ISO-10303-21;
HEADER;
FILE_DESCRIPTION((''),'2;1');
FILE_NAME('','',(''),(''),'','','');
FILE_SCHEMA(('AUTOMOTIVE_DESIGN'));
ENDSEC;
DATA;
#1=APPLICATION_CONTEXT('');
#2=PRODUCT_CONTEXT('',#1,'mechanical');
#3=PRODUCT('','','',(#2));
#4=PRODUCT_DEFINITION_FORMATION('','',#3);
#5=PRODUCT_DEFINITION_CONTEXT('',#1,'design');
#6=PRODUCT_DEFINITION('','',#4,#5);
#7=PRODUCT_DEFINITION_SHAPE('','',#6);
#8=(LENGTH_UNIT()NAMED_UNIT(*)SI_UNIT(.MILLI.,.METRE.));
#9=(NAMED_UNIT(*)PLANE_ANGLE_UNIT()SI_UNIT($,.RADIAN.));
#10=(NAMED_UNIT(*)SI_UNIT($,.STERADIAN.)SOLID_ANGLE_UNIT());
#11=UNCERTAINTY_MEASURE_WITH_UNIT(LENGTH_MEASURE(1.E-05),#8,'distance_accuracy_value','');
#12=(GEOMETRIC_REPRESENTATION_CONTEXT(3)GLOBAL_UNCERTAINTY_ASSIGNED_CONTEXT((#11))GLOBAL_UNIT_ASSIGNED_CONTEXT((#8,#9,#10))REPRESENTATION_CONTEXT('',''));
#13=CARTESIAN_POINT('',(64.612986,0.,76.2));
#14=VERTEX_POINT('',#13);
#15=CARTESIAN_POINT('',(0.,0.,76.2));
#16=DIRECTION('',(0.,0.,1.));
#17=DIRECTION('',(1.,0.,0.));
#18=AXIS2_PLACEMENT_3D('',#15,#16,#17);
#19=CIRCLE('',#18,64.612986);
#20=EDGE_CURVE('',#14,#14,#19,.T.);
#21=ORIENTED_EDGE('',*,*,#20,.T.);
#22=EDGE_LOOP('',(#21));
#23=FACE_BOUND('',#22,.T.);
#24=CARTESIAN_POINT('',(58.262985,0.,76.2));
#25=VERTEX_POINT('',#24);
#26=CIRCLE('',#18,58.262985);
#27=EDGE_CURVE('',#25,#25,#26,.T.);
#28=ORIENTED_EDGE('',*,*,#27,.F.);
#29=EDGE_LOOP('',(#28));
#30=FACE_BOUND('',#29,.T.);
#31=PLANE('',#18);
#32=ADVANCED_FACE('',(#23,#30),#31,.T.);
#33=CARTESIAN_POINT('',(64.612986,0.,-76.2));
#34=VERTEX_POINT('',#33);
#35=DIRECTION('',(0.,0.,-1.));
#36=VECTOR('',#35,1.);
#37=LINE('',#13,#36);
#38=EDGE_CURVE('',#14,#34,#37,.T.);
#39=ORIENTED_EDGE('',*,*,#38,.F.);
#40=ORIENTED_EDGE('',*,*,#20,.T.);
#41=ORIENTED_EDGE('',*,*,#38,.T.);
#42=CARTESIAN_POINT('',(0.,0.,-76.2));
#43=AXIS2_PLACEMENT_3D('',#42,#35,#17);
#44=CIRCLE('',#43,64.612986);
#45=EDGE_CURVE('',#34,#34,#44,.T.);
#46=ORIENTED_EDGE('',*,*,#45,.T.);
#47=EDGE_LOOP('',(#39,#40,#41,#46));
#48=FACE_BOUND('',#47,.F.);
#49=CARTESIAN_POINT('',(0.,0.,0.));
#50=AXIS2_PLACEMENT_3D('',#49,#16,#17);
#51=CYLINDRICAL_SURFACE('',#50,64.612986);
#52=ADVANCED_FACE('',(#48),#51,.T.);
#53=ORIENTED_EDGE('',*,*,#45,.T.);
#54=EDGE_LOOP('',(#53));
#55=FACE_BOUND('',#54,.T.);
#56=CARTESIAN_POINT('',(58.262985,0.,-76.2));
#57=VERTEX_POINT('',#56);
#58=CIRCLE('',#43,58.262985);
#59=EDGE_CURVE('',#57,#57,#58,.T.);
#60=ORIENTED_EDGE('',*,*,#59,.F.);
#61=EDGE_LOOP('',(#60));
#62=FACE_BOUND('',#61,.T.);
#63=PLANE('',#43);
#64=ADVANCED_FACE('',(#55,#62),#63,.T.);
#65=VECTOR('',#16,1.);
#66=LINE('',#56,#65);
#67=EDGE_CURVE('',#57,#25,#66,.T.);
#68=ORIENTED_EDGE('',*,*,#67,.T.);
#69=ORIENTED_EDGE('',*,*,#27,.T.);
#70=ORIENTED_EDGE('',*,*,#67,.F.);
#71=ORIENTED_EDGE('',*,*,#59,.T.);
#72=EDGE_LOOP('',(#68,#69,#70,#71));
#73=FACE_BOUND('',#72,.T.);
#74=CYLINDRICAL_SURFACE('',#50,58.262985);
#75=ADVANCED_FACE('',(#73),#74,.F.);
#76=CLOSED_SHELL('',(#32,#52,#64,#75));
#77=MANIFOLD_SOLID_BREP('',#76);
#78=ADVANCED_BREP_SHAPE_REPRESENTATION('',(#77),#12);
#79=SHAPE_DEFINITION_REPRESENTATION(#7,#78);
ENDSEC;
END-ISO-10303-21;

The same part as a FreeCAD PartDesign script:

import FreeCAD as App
import Part
import Sketcher

V = App.Vector
Q = App.Units.Quantity

doc = App.newDocument("Part")
body = doc.addObject("PartDesign::Body", "Body")

# Sketch on XY plane
sketch1 = body.newObject("Sketcher::SketchObject", "Sketch")
sketch1.AttachmentSupport = (doc.getObject("XY_Plane"), [""])
sketch1.MapMode = "FlatFace"
sketch1.addGeometry([
    Part.Circle(V(0, 0, 0), V(0, 0, 1), 64.612986),
    Part.Circle(V(0, 0, 0), V(0, 0, 1), 58.262985),
], False)
sketch1.addConstraint([
    Sketcher.Constraint("Coincident", 0, 3, -1, 1),
    Sketcher.Constraint("Coincident", 1, 3, -1, 1),
    Sketcher.Constraint("Diameter", 1, 116.52597),
    Sketcher.Constraint("Diameter", 0, 129.225972),
])
pad1 = body.newObject("PartDesign::Pad", "Pad")
pad1.Profile = sketch1
pad1.Length = Q("3 in")

# Sketch on XY plane
sketch2 = body.newObject("Sketcher::SketchObject", "Sketch001")
sketch2.AttachmentSupport = (doc.getObject("XY_Plane"), [""])
sketch2.MapMode = "FlatFace"
sketch2.addGeometry([
    Part.Circle(V(0, 0, 0), V(0, 0, 1), 64.612986),
    Part.Circle(V(0, 0, 0), V(0, 0, 1), 58.262985),
], False)
sketch2.addConstraint([
    Sketcher.Constraint("Coincident", 0, 3, -1, 1),
    Sketcher.Constraint("Coincident", 1, 3, -1, 1),
    Sketcher.Constraint("Diameter", 1, 116.52597),
    Sketcher.Constraint("Diameter", 0, 129.225972),
])
pad2 = body.newObject("PartDesign::Pad", "Pad001")
pad2.Profile = sketch2
pad2.Length = Q("3 in")
pad2.Reversed = True

doc.recompute()
